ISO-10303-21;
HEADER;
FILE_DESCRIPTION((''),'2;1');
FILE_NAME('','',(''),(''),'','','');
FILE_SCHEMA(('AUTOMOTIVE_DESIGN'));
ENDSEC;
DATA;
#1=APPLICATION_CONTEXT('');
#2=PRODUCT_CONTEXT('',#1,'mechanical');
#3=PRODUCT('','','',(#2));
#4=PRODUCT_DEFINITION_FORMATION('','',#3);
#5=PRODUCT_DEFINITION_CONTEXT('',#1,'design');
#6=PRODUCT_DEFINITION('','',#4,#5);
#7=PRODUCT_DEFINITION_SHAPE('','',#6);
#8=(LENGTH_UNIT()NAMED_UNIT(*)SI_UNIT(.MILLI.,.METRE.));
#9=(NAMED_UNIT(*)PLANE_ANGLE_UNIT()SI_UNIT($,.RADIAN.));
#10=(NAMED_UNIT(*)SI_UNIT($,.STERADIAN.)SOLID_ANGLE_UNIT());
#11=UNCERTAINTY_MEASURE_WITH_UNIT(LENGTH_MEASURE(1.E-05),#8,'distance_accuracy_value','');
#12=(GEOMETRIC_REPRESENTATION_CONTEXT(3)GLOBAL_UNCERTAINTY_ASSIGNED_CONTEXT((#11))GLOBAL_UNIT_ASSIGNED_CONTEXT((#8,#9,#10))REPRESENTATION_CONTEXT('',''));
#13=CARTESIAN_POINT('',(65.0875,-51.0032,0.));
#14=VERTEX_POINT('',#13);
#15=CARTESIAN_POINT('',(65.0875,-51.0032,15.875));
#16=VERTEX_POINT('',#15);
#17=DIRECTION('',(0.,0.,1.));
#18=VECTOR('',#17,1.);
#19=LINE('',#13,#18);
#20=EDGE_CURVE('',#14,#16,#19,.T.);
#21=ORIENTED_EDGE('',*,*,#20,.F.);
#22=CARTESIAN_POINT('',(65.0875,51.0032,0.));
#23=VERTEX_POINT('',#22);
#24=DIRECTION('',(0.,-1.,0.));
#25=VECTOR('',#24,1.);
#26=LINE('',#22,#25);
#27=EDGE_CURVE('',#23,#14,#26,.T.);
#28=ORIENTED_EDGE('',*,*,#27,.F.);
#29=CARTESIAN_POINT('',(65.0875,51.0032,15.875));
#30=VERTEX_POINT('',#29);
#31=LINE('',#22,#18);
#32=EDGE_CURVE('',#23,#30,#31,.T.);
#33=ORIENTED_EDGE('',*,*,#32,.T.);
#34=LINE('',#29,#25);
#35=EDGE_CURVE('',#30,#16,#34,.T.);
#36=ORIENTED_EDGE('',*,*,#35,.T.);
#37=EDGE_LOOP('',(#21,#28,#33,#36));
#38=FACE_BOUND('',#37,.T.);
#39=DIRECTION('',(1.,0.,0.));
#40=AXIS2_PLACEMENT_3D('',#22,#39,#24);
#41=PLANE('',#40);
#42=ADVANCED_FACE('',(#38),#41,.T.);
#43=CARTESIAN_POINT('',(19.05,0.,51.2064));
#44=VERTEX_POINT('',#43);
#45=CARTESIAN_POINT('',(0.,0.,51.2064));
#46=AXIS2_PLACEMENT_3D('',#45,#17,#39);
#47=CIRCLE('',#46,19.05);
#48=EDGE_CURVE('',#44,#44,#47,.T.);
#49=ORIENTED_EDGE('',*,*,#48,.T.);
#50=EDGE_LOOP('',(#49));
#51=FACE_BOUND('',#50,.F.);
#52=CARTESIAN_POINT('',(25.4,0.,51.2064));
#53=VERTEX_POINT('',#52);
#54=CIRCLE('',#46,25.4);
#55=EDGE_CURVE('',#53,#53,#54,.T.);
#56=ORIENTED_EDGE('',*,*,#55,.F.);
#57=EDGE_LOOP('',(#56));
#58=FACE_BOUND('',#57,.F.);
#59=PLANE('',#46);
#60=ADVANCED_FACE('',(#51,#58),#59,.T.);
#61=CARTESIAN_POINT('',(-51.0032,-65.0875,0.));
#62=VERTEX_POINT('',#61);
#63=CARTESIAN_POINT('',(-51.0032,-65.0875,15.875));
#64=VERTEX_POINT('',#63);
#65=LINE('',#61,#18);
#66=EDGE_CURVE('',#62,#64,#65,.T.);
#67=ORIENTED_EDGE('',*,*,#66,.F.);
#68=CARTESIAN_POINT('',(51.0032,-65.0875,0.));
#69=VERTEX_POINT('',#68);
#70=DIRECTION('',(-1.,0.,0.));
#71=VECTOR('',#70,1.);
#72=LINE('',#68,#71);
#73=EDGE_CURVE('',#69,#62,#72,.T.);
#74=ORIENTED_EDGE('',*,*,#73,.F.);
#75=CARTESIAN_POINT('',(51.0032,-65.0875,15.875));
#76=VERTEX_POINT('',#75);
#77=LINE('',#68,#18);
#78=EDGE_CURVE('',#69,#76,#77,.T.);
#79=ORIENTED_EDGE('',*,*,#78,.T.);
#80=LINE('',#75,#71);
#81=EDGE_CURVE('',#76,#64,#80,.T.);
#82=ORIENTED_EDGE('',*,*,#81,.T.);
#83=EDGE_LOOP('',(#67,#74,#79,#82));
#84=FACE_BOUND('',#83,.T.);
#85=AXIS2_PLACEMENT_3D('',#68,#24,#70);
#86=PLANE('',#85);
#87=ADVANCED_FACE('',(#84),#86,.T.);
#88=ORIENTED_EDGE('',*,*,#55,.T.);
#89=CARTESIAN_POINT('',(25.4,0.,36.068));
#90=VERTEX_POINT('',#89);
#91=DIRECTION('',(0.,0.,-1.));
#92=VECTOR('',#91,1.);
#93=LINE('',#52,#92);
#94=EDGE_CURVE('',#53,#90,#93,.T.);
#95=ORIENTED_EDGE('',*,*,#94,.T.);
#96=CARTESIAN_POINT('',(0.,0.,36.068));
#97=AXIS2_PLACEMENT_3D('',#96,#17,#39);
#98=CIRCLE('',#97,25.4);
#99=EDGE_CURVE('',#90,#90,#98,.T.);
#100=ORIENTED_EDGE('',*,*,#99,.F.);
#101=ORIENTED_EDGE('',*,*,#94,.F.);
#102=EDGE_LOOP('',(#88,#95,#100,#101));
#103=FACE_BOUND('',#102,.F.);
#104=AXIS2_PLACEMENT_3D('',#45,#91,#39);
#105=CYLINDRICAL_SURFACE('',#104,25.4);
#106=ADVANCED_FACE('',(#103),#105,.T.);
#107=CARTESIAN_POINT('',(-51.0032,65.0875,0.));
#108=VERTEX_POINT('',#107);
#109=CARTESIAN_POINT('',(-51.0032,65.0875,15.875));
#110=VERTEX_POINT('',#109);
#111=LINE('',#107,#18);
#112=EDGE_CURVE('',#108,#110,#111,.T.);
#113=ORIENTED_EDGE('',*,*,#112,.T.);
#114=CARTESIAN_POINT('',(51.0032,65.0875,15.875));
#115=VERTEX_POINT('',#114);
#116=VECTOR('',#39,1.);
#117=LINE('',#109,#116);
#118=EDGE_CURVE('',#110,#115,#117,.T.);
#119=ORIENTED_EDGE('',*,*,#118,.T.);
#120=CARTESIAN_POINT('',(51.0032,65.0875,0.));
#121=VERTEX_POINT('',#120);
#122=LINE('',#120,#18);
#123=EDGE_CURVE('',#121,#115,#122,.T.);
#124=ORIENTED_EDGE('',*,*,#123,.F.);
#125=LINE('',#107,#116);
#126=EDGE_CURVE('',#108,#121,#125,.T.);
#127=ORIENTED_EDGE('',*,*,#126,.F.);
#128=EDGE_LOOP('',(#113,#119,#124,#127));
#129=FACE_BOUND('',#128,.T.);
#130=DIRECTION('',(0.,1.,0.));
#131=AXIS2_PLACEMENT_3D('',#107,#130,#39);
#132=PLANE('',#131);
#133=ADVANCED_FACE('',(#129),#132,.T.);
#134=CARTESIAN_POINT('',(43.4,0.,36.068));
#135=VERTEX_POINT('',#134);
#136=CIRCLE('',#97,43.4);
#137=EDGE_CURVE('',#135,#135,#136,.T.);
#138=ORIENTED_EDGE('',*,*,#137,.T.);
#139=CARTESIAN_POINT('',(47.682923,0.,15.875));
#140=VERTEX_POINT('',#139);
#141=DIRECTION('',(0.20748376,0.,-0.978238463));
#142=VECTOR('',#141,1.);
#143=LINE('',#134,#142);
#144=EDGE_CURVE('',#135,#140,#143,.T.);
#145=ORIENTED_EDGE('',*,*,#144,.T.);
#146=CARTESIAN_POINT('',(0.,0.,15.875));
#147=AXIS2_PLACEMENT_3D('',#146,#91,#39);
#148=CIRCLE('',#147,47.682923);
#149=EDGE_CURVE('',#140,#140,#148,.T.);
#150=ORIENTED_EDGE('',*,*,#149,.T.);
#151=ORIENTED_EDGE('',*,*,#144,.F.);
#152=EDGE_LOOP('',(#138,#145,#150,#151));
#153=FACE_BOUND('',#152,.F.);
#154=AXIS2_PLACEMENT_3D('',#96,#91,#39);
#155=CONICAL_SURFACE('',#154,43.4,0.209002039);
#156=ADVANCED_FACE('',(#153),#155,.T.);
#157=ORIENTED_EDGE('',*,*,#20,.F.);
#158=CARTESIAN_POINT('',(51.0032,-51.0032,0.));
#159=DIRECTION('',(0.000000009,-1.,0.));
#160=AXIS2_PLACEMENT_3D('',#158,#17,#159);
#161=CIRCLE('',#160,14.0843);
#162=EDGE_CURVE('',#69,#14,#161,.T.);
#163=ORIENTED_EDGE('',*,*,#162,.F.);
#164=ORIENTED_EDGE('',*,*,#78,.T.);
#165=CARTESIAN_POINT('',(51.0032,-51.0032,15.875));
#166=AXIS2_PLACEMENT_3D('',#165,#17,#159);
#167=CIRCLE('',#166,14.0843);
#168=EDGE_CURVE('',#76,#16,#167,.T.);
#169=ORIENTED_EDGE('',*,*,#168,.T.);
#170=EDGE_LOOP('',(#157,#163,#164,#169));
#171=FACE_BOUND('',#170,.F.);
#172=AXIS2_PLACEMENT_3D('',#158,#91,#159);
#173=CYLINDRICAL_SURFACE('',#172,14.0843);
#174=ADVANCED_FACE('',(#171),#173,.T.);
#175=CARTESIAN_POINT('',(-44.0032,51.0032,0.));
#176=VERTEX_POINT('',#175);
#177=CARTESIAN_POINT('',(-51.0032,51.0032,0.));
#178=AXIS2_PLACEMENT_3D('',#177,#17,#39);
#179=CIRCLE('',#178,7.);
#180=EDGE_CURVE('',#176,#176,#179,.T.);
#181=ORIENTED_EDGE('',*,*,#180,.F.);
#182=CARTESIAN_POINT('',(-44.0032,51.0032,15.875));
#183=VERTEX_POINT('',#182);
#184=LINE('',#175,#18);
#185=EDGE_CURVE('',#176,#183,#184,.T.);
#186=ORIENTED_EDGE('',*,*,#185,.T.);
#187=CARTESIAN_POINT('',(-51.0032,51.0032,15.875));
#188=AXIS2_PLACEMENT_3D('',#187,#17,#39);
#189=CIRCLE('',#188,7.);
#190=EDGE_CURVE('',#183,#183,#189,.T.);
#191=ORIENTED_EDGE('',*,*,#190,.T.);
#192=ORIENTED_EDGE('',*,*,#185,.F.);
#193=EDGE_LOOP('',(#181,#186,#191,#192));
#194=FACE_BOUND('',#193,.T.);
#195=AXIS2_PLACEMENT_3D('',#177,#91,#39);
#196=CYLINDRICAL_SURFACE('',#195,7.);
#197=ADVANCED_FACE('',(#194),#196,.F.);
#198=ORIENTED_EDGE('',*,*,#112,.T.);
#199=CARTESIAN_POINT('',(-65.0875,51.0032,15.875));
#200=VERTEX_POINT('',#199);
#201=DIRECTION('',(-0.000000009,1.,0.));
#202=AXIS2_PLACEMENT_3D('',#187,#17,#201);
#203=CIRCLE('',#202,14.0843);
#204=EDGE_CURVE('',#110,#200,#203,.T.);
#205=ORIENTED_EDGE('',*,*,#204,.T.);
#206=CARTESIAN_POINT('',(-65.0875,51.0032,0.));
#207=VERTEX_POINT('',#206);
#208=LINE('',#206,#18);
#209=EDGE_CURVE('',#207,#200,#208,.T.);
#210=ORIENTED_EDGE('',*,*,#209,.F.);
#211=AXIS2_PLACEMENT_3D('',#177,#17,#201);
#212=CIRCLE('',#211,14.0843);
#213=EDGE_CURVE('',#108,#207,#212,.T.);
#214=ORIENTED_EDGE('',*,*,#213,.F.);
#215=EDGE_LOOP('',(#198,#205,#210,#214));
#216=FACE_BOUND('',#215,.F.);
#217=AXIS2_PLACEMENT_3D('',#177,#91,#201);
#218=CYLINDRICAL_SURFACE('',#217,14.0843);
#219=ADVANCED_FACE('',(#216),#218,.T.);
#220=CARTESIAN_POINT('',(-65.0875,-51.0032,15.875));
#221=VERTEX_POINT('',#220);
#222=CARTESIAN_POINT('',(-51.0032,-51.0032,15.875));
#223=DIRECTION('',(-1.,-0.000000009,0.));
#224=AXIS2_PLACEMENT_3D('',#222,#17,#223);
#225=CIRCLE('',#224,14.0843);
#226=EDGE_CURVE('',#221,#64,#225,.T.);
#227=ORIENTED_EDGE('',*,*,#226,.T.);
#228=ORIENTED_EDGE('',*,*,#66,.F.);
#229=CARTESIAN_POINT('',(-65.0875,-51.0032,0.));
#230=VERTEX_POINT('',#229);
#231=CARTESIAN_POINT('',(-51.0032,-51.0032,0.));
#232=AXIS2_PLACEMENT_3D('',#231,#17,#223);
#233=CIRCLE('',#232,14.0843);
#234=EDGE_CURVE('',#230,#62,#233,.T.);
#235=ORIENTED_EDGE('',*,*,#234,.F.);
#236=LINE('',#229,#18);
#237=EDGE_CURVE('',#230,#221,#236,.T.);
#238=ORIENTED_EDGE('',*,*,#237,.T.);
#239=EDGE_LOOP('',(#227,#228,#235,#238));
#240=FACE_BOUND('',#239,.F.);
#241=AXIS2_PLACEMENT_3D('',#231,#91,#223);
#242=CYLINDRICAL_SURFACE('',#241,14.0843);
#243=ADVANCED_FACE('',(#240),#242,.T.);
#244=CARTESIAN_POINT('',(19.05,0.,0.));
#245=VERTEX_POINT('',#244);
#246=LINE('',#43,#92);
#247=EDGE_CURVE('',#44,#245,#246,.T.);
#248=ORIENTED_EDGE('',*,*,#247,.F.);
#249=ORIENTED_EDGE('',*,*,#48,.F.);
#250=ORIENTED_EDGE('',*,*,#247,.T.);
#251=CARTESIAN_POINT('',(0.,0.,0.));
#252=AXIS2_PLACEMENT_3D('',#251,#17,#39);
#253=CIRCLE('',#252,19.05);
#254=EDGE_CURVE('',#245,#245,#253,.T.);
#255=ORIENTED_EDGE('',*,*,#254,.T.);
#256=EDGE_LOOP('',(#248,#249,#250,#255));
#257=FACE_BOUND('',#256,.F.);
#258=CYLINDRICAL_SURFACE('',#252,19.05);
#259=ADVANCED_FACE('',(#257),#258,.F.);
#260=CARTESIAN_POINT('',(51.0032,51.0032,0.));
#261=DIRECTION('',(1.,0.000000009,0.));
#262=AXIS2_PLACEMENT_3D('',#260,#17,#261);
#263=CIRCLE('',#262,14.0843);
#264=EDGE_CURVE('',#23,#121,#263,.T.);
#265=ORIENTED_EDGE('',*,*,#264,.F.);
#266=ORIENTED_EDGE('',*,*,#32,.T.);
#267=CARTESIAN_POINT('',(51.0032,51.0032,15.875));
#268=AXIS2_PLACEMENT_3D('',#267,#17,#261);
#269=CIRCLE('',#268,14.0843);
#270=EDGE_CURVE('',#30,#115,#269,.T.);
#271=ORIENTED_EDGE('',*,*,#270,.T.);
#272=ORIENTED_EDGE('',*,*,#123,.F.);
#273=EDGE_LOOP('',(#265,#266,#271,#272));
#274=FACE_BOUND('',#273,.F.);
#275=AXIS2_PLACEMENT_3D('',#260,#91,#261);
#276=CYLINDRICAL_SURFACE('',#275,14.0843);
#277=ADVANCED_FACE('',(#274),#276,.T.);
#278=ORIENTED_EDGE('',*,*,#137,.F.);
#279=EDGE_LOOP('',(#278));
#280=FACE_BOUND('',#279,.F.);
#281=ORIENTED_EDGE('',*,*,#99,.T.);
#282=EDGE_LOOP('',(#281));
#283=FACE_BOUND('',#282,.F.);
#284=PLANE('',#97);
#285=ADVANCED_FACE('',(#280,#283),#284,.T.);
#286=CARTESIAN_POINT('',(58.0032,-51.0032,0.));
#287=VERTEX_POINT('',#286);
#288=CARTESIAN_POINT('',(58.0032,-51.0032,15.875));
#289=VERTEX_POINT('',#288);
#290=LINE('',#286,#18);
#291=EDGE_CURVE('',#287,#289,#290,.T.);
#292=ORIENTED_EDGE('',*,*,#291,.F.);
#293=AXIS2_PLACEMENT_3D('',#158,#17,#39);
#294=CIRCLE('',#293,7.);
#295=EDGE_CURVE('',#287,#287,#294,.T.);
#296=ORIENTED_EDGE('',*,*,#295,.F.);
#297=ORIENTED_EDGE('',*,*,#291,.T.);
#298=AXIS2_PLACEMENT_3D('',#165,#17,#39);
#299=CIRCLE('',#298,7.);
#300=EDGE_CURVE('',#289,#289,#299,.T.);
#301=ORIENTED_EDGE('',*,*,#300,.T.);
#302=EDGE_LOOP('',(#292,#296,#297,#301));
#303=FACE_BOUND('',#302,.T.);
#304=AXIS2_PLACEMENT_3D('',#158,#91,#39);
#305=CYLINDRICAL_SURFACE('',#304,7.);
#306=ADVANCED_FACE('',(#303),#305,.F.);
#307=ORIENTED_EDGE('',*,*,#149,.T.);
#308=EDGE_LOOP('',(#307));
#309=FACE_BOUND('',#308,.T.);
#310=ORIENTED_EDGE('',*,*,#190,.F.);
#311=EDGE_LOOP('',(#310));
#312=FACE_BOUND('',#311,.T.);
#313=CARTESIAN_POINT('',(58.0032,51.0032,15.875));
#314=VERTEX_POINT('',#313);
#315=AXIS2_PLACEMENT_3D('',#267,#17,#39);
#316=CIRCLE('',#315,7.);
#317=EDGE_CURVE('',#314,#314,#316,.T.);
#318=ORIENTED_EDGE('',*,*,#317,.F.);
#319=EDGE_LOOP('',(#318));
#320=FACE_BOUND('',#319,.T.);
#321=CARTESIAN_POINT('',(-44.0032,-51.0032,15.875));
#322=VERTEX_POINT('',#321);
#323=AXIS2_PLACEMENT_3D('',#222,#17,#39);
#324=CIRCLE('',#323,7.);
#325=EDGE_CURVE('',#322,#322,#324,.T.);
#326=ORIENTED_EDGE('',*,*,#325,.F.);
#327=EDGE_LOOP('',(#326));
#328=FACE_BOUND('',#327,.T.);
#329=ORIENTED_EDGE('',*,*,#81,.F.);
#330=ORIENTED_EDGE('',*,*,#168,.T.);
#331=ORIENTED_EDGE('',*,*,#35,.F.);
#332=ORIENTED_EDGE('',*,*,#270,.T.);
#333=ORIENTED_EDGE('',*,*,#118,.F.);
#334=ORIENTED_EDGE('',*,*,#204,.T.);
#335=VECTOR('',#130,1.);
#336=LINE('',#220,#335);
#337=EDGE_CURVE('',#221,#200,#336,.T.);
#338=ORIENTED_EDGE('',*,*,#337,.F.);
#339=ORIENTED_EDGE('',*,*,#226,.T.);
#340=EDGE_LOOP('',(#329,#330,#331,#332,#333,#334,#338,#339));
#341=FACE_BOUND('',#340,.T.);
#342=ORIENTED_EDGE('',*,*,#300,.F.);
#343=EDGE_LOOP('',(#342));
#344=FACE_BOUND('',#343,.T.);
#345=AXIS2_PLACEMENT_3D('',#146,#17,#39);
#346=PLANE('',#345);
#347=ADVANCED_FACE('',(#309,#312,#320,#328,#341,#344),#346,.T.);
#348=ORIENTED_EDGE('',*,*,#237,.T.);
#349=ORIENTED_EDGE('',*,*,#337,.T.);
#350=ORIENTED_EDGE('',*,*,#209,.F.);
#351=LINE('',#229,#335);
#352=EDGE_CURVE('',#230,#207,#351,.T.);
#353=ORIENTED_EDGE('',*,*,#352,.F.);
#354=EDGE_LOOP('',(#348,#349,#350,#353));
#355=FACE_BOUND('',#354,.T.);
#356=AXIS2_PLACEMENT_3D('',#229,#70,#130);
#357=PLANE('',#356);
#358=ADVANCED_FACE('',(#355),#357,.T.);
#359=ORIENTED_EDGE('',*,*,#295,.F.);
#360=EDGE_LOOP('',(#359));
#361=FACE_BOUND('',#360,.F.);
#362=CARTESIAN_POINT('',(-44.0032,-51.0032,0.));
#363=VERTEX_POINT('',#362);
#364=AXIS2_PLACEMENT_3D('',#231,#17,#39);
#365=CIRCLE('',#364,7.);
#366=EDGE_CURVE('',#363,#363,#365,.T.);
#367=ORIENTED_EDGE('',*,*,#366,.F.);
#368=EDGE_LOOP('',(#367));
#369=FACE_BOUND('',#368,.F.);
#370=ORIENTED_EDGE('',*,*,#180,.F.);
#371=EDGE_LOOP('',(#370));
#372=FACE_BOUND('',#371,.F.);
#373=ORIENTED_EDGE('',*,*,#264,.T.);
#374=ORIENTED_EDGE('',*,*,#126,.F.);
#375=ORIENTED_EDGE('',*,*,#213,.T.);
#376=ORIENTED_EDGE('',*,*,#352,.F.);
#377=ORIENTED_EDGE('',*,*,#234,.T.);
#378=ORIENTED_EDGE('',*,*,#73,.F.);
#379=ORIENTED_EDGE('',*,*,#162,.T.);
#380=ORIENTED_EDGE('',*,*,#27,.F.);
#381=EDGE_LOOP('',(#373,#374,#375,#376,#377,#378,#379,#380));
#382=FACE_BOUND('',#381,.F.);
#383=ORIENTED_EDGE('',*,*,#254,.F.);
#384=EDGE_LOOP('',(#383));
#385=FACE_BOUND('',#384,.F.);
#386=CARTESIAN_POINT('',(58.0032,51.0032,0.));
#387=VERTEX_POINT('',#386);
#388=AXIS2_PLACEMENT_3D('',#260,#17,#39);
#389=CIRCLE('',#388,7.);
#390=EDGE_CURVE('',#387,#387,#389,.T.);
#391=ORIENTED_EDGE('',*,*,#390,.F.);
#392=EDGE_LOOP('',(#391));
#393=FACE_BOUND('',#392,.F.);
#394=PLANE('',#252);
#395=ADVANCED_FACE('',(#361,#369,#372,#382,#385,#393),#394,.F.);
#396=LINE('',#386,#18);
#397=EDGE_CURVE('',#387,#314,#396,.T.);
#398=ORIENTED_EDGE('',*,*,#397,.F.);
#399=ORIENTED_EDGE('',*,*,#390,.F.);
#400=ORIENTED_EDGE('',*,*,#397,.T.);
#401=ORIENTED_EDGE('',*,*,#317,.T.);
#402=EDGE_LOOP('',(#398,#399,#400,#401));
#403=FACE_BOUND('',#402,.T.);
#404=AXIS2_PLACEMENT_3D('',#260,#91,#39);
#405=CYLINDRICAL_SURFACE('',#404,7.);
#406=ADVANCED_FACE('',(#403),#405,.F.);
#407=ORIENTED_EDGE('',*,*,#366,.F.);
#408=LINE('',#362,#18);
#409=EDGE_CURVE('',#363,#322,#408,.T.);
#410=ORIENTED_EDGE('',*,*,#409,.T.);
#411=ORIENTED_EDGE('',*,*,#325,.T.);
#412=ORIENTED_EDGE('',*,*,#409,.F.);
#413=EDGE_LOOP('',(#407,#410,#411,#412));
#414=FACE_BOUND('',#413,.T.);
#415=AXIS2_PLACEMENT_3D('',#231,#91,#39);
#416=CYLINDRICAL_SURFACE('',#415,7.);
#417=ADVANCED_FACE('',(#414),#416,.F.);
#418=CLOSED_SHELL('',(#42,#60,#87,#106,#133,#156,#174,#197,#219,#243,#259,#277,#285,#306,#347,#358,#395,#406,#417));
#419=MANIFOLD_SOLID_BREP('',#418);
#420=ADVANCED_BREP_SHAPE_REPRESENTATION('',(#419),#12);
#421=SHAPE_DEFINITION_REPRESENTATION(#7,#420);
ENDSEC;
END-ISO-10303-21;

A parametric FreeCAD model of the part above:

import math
import FreeCAD as App
import Part
import Sketcher
Q = App.Units.Quantity

doc = App.newDocument("Part")
body = doc.addObject("PartDesign::Body", "Body")

# Sketch on XZ plane
sketch1 = body.newObject("Sketcher::SketchObject", "Sketch")
sketch1.AttachmentSupport = (doc.getObject("XZ_Plane"), [""])
sketch1.MapMode = "FlatFace"
sketch1.addGeometry(Part.LineSegment(App.Vector(19, 51, 0), App.Vector(19, 0, 0)), False)
sketch1.addGeometry(Part.LineSegment(App.Vector(19, 0, 0), App.Vector(51, 0, 0)), False)
sketch1.addGeometry(Part.LineSegment(App.Vector(51, 0, 0), App.Vector(43, 36, 0)), False)
sketch1.addGeometry(Part.LineSegment(App.Vector(43, 36, 0), App.Vector(25, 36, 0)), False)
sketch1.addGeometry(Part.LineSegment(App.Vector(25, 36, 0), App.Vector(25, 51, 0)), False)
sketch1.addGeometry(Part.LineSegment(App.Vector(25, 51, 0), App.Vector(19, 51, 0)), False)
sketch1.addConstraint(Sketcher.Constraint("Coincident", 0, 2, 1, 1))
sketch1.addConstraint(Sketcher.Constraint("Coincident", 1, 2, 2, 1))
sketch1.addConstraint(Sketcher.Constraint("Coincident", 2, 2, 3, 1))
sketch1.addConstraint(Sketcher.Constraint("Coincident", 3, 2, 4, 1))
sketch1.addConstraint(Sketcher.Constraint("Coincident", 4, 2, 5, 1))
sketch1.addConstraint(Sketcher.Constraint("Coincident", 5, 2, 0, 1))
sketch1.addConstraint(Sketcher.Constraint("Vertical", 0))
sketch1.addConstraint(Sketcher.Constraint("Horizontal", 1))
sketch1.addConstraint(Sketcher.Constraint("Horizontal", 3))
sketch1.addConstraint(Sketcher.Constraint("Vertical", 4))
sketch1.addConstraint(Sketcher.Constraint("Horizontal", 5))
sketch1.addConstraint(Sketcher.Constraint("PointOnObject", 0, 2, -1))
sketch1.addConstraint(Sketcher.Constraint("DistanceX", -1, 1, 3, 2, Q("1 in")))
sketch1.addConstraint(Sketcher.Constraint("DistanceX", 5, 2, 5, 1, Q("0.25 in")))
sketch1.addConstraint(Sketcher.Constraint("DistanceY", 0, 2, 0, 1, Q("2.016 in")))
sketch1.addConstraint(Sketcher.Constraint("DistanceY", 4, 1, 4, 2, Q("0.596 in")))
sketch1.addConstraint(Sketcher.Constraint("DistanceX", 1, 1, 1, 2, Q("32 mm")))
sketch1.addConstraint(Sketcher.Constraint("DistanceX", 3, 2, 3, 1, Q("18 mm")))
revolution = body.newObject("PartDesign::Revolution", "Revolution")
revolution.Profile = sketch1
revolution.ReferenceAxis = (sketch1, ["V_Axis"])
revolution.Angle = 360

# Sketch on XY plane
sketch2 = body.newObject("Sketcher::SketchObject", "Sketch001")
sketch2.AttachmentSupport = (doc.getObject("XY_Plane"), [""])
sketch2.MapMode = "FlatFace"
sketch2.addGeometry(Part.ArcOfCircle(Part.Circle(App.Vector(-51, 51, 0), App.Vector(0, 0, 1), 14), math.radians(90), math.radians(180)), False)
sketch2.addGeometry(Part.LineSegment(App.Vector(-65, 51, 0), App.Vector(-65, -51, 0)), False)
sketch2.addGeometry(Part.ArcOfCircle(Part.Circle(App.Vector(-51, -51, 0), App.Vector(0, 0, 1), 14), math.radians(-180), math.radians(-90)), False)
sketch2.addGeometry(Part.LineSegment(App.Vector(-51, -65, 0), App.Vector(51, -65, 0)), False)
sketch2.addGeometry(Part.ArcOfCircle(Part.Circle(App.Vector(51, -51, 0), App.Vector(0, 0, 1), 14), math.radians(-90), math.radians(0)), False)
sketch2.addGeometry(Part.LineSegment(App.Vector(65, -51, 0), App.Vector(65, 51, 0)), False)
sketch2.addGeometry(Part.ArcOfCircle(Part.Circle(App.Vector(51, 51, 0), App.Vector(0, 0, 1), 14), math.radians(0), math.radians(90)), False)
sketch2.addGeometry(Part.LineSegment(App.Vector(51, 65, 0), App.Vector(-51, 65, 0)), False)
sketch2.addGeometry(Part.Circle(App.Vector(-51, -51, 0), App.Vector(0, 0, 1), 7), False)
sketch2.addGeometry(Part.Circle(App.Vector(51, -51, 0), App.Vector(0, 0, 1), 7), False)
sketch2.addGeometry(Part.Circle(App.Vector(-51, 51, 0), App.Vector(0, 0, 1), 7), False)
sketch2.addGeometry(Part.Circle(App.Vector(0, 0, 0), App.Vector(0, 0, 1), 19), False)
sketch2.addGeometry(Part.Circle(App.Vector(51, 51, 0), App.Vector(0, 0, 1), 7), False)
sketch2.addConstraint(Sketcher.Constraint("Tangent", 0, 2, 1, 1))
sketch2.addConstraint(Sketcher.Constraint("Tangent", 1, 2, 2, 1))
sketch2.addConstraint(Sketcher.Constraint("Tangent", 2, 2, 3, 1))
sketch2.addConstraint(Sketcher.Constraint("Tangent", 3, 2, 4, 1))
sketch2.addConstraint(Sketcher.Constraint("Tangent", 4, 2, 5, 1))
sketch2.addConstraint(Sketcher.Constraint("Tangent", 5, 2, 6, 1))
sketch2.addConstraint(Sketcher.Constraint("Tangent", 6, 2, 7, 1))
sketch2.addConstraint(Sketcher.Constraint("Tangent", 7, 2, 0, 1))
sketch2.addConstraint(Sketcher.Constraint("Vertical", 1))
sketch2.addConstraint(Sketcher.Constraint("Horizontal", 3))
sketch2.addConstraint(Sketcher.Constraint("Vertical", 5))
sketch2.addConstraint(Sketcher.Constraint("Horizontal", 7))
sketch2.addConstraint(Sketcher.Constraint("Coincident", 11, 3, -1, 1))
sketch2.addConstraint(Sketcher.Constraint("Coincident", 8, 3, 2, 3))
sketch2.addConstraint(Sketcher.Constraint("Coincident", 9, 3, 4, 3))
sketch2.addConstraint(Sketcher.Constraint("Coincident", 10, 3, 0, 3))
sketch2.addConstraint(Sketcher.Constraint("Coincident", 12, 3, 6, 3))
sketch2.addConstraint(Sketcher.Constraint("Equal", 0, 2))
sketch2.addConstraint(Sketcher.Constraint("Equal", 2, 4))
sketch2.addConstraint(Sketcher.Constraint("Equal", 4, 6))
sketch2.addConstraint(Sketcher.Constraint("Equal", 8, 9))
sketch2.addConstraint(Sketcher.Constraint("Equal", 9, 10))
sketch2.addConstraint(Sketcher.Constraint("Equal", 10, 12))
sketch2.addConstraint(Sketcher.Constraint("Symmetric", 0, 3, 4, 3, -1, 1))
sketch2.addConstraint(Sketcher.Constraint("Equal", 7, 1))
sketch2.addConstraint(Sketcher.Constraint("Diameter", 11, Q("1.5 in")))
sketch2.addConstraint(Sketcher.Constraint("Radius", 0, Q("0.5545 in")))
sketch2.addConstraint(Sketcher.Constraint("Diameter", 8, Q("14 mm")))
sketch2.addConstraint(Sketcher.Constraint("DistanceX", 3, 1, 3, 2, Q("4.016 in")))
pad1 = body.newObject("PartDesign::Pad", "Pad")
pad1.Profile = sketch2
pad1.Length = Q("0.625 in")

doc.recompute()
